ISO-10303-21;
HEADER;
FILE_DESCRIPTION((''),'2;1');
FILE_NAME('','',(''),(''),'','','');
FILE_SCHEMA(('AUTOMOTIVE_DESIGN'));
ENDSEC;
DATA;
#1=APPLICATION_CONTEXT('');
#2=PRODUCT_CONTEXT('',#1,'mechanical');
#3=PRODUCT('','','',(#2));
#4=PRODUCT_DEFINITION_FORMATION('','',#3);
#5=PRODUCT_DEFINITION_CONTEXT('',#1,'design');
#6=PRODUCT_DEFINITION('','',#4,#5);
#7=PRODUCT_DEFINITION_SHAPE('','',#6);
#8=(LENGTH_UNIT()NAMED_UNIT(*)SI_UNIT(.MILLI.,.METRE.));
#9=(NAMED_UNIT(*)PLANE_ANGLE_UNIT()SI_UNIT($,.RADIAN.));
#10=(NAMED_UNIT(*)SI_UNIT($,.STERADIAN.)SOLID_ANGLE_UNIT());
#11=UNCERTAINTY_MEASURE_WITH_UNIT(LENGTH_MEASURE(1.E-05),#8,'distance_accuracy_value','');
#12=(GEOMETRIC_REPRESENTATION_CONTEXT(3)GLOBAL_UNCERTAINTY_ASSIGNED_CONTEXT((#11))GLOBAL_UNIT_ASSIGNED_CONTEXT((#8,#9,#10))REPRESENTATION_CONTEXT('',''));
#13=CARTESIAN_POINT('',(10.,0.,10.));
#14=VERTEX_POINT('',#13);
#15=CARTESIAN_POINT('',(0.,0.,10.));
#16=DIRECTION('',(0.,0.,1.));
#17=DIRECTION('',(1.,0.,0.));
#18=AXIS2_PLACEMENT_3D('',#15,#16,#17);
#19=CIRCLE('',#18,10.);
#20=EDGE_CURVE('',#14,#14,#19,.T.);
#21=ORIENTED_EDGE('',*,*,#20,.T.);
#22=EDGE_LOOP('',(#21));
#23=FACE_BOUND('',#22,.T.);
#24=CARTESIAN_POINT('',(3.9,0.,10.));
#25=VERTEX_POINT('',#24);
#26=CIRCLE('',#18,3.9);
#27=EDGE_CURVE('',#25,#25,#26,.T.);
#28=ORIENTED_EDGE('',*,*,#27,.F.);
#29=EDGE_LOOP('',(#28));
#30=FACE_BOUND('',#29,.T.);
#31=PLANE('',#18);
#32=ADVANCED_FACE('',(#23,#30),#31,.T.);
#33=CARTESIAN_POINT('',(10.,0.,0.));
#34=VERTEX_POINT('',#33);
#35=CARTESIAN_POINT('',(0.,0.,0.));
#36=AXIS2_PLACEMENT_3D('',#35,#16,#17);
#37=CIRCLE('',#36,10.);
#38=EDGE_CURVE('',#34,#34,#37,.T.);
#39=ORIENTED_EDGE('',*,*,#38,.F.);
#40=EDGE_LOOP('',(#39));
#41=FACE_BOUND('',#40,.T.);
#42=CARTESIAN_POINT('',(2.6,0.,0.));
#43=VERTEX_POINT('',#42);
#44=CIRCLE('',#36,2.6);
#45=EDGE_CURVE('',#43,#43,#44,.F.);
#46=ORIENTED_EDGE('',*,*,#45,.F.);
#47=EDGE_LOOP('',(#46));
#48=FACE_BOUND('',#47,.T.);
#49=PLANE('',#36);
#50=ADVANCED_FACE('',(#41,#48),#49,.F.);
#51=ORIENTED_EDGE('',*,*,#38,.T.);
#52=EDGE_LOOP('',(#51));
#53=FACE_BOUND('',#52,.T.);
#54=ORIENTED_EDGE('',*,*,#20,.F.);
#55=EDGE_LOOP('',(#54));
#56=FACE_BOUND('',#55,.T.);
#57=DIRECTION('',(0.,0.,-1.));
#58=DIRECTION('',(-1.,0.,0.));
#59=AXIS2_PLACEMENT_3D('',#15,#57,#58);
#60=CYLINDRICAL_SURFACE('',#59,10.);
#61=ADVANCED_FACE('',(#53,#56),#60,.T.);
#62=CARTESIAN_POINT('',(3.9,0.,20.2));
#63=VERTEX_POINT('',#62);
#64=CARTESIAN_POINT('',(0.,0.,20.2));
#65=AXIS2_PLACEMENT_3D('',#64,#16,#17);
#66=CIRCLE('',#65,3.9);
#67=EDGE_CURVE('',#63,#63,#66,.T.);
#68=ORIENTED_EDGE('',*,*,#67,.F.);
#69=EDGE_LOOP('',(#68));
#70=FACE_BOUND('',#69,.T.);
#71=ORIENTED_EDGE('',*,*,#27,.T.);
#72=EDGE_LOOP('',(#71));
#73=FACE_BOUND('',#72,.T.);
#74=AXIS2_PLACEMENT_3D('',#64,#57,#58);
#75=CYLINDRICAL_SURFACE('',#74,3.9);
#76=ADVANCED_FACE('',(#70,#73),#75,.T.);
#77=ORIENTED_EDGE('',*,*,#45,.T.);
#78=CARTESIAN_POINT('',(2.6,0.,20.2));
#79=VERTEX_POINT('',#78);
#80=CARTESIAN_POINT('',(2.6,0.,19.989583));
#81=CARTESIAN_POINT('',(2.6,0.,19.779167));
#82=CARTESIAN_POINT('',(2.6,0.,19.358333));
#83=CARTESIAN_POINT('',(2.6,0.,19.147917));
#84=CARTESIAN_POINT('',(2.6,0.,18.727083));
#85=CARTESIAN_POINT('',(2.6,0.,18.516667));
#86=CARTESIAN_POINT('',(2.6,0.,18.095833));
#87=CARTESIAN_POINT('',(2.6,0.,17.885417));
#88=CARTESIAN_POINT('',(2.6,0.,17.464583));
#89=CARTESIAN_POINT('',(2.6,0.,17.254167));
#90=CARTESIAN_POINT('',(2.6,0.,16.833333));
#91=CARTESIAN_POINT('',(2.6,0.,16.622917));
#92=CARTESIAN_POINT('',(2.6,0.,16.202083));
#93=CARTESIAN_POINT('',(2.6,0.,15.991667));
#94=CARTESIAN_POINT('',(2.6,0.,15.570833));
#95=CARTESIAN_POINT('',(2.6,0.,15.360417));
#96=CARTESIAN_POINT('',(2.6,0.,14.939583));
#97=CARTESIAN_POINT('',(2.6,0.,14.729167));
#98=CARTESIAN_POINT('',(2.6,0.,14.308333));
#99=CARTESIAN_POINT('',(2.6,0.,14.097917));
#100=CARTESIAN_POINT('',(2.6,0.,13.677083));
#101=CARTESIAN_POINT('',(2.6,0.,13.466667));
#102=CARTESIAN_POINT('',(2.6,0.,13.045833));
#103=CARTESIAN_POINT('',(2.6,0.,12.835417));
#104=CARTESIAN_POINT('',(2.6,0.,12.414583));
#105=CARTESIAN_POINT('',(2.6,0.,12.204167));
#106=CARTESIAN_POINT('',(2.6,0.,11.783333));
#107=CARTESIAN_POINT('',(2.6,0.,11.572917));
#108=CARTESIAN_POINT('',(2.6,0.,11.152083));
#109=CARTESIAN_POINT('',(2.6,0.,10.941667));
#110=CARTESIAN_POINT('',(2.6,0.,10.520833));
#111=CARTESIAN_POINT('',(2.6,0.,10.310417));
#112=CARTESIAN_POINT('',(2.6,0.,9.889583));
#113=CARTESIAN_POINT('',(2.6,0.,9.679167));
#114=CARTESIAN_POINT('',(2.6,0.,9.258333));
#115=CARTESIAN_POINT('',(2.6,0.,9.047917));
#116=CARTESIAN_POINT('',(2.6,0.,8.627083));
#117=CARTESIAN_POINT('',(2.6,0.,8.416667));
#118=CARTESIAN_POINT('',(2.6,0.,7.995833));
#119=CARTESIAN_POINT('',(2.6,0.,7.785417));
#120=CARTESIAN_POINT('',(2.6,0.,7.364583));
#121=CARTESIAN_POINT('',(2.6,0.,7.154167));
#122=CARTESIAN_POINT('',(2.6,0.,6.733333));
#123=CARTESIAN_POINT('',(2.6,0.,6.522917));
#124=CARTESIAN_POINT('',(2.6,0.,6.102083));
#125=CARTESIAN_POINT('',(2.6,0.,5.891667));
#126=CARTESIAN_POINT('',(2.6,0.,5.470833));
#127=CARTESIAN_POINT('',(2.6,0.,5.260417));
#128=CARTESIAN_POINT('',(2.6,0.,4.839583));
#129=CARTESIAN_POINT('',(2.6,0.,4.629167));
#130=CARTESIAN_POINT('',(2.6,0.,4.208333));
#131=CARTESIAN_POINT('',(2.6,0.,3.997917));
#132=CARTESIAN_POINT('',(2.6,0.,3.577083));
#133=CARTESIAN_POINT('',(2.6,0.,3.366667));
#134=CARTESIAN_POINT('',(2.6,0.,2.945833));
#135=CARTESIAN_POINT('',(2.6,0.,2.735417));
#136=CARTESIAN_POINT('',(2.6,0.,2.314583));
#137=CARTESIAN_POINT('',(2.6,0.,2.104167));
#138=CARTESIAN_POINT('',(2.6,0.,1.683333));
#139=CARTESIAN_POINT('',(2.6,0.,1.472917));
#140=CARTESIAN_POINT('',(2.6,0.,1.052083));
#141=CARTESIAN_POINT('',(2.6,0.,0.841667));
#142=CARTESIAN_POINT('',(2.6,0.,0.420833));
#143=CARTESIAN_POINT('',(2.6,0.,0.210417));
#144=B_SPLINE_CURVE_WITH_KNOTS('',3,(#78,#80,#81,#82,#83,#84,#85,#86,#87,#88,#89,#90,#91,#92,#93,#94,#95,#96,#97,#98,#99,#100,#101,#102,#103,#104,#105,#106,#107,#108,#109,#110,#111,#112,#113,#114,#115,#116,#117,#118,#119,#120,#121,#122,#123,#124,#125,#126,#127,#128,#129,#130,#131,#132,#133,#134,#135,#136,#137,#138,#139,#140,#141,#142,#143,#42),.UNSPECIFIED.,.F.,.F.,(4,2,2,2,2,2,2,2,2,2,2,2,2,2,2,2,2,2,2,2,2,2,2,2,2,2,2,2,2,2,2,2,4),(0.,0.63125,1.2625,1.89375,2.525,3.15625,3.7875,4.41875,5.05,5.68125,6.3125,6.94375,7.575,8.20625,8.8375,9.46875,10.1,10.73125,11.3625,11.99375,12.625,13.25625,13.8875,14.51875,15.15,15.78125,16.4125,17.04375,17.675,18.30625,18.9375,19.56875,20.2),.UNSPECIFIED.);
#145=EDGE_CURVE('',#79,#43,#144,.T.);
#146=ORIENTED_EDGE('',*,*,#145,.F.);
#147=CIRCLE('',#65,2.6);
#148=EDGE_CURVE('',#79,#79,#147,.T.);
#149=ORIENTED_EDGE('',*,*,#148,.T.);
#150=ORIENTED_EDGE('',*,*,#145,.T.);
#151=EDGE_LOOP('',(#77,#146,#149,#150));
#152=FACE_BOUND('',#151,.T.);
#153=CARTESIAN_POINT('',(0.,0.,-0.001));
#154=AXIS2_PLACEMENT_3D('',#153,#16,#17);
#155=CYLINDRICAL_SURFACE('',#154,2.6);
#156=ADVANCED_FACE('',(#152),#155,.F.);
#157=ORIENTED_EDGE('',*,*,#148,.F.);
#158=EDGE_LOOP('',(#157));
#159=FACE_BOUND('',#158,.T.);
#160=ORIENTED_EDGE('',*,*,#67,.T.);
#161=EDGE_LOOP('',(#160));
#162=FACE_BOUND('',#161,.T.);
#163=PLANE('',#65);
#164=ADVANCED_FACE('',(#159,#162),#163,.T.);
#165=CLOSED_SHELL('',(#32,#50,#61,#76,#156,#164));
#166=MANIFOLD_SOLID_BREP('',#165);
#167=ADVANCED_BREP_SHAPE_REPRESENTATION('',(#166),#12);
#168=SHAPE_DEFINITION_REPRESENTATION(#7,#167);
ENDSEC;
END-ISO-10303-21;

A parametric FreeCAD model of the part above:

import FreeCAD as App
import Part
import Sketcher
from FreeCAD import Vector
Q = App.Units.Quantity

doc = App.newDocument("Part")
body = doc.addObject("PartDesign::Body", "Body")

sketch1 = body.newObject("Sketcher::SketchObject", "Sketch")
sketch1.AttachmentSupport = (doc.getObject("XY_Plane"), [""])
sketch1.MapMode = "FlatFace"
sketch1.addGeometry(Part.Circle(Vector(0, 0, 0), Vector(0, 0, 1), 10), False)
sketch1.addConstraint([
    Sketcher.Constraint("Coincident", 0, 3, -1, 1),
    Sketcher.Constraint("Diameter", 0, Q("20 mm")),
])
pad1 = body.newObject("PartDesign::Pad", "Pad")
pad1.Profile = sketch1
pad1.Length = 10

sketch2 = body.newObject("Sketcher::SketchObject", "Sketch001")
sketch2.AttachmentSupport = (doc.getObject("XY_Plane"), [""])
sketch2.MapMode = "FlatFace"
sketch2.AttachmentOffset = App.Placement(Vector(0, 0, 10), App.Rotation())
sketch2.addGeometry(Part.Circle(Vector(0, 0, 0), Vector(0, 0, 1), 3.9), False)
sketch2.addConstraint([
    Sketcher.Constraint("Coincident", 0, 3, -1, 1),
    Sketcher.Constraint("Diameter", 0, Q("7.8 mm")),
])
pad2 = body.newObject("PartDesign::Pad", "Pad001")
pad2.Profile = sketch2
pad2.Length = 10.2

sketch3 = body.newObject("Sketcher::SketchObject", "Sketch002")
sketch3.AttachmentSupport = (doc.getObject("XY_Plane"), [""])
sketch3.MapMode = "FlatFace"
sketch3.AttachmentOffset = App.Placement(Vector(0, 0, 20.2), App.Rotation())
sketch3.addGeometry(Part.Circle(Vector(0, 0, 0), Vector(0, 0, 1), 2.6), False)
sketch3.addConstraint([
    Sketcher.Constraint("Coincident", 0, 3, -1, 1),
    Sketcher.Constraint("Diameter", 0, Q("5.2 mm")),
])
pocket1 = body.newObject("PartDesign::Pocket", "Pocket")
pocket1.Profile = sketch3
pocket1.Type = "UpToFirst"

doc.recompute()
